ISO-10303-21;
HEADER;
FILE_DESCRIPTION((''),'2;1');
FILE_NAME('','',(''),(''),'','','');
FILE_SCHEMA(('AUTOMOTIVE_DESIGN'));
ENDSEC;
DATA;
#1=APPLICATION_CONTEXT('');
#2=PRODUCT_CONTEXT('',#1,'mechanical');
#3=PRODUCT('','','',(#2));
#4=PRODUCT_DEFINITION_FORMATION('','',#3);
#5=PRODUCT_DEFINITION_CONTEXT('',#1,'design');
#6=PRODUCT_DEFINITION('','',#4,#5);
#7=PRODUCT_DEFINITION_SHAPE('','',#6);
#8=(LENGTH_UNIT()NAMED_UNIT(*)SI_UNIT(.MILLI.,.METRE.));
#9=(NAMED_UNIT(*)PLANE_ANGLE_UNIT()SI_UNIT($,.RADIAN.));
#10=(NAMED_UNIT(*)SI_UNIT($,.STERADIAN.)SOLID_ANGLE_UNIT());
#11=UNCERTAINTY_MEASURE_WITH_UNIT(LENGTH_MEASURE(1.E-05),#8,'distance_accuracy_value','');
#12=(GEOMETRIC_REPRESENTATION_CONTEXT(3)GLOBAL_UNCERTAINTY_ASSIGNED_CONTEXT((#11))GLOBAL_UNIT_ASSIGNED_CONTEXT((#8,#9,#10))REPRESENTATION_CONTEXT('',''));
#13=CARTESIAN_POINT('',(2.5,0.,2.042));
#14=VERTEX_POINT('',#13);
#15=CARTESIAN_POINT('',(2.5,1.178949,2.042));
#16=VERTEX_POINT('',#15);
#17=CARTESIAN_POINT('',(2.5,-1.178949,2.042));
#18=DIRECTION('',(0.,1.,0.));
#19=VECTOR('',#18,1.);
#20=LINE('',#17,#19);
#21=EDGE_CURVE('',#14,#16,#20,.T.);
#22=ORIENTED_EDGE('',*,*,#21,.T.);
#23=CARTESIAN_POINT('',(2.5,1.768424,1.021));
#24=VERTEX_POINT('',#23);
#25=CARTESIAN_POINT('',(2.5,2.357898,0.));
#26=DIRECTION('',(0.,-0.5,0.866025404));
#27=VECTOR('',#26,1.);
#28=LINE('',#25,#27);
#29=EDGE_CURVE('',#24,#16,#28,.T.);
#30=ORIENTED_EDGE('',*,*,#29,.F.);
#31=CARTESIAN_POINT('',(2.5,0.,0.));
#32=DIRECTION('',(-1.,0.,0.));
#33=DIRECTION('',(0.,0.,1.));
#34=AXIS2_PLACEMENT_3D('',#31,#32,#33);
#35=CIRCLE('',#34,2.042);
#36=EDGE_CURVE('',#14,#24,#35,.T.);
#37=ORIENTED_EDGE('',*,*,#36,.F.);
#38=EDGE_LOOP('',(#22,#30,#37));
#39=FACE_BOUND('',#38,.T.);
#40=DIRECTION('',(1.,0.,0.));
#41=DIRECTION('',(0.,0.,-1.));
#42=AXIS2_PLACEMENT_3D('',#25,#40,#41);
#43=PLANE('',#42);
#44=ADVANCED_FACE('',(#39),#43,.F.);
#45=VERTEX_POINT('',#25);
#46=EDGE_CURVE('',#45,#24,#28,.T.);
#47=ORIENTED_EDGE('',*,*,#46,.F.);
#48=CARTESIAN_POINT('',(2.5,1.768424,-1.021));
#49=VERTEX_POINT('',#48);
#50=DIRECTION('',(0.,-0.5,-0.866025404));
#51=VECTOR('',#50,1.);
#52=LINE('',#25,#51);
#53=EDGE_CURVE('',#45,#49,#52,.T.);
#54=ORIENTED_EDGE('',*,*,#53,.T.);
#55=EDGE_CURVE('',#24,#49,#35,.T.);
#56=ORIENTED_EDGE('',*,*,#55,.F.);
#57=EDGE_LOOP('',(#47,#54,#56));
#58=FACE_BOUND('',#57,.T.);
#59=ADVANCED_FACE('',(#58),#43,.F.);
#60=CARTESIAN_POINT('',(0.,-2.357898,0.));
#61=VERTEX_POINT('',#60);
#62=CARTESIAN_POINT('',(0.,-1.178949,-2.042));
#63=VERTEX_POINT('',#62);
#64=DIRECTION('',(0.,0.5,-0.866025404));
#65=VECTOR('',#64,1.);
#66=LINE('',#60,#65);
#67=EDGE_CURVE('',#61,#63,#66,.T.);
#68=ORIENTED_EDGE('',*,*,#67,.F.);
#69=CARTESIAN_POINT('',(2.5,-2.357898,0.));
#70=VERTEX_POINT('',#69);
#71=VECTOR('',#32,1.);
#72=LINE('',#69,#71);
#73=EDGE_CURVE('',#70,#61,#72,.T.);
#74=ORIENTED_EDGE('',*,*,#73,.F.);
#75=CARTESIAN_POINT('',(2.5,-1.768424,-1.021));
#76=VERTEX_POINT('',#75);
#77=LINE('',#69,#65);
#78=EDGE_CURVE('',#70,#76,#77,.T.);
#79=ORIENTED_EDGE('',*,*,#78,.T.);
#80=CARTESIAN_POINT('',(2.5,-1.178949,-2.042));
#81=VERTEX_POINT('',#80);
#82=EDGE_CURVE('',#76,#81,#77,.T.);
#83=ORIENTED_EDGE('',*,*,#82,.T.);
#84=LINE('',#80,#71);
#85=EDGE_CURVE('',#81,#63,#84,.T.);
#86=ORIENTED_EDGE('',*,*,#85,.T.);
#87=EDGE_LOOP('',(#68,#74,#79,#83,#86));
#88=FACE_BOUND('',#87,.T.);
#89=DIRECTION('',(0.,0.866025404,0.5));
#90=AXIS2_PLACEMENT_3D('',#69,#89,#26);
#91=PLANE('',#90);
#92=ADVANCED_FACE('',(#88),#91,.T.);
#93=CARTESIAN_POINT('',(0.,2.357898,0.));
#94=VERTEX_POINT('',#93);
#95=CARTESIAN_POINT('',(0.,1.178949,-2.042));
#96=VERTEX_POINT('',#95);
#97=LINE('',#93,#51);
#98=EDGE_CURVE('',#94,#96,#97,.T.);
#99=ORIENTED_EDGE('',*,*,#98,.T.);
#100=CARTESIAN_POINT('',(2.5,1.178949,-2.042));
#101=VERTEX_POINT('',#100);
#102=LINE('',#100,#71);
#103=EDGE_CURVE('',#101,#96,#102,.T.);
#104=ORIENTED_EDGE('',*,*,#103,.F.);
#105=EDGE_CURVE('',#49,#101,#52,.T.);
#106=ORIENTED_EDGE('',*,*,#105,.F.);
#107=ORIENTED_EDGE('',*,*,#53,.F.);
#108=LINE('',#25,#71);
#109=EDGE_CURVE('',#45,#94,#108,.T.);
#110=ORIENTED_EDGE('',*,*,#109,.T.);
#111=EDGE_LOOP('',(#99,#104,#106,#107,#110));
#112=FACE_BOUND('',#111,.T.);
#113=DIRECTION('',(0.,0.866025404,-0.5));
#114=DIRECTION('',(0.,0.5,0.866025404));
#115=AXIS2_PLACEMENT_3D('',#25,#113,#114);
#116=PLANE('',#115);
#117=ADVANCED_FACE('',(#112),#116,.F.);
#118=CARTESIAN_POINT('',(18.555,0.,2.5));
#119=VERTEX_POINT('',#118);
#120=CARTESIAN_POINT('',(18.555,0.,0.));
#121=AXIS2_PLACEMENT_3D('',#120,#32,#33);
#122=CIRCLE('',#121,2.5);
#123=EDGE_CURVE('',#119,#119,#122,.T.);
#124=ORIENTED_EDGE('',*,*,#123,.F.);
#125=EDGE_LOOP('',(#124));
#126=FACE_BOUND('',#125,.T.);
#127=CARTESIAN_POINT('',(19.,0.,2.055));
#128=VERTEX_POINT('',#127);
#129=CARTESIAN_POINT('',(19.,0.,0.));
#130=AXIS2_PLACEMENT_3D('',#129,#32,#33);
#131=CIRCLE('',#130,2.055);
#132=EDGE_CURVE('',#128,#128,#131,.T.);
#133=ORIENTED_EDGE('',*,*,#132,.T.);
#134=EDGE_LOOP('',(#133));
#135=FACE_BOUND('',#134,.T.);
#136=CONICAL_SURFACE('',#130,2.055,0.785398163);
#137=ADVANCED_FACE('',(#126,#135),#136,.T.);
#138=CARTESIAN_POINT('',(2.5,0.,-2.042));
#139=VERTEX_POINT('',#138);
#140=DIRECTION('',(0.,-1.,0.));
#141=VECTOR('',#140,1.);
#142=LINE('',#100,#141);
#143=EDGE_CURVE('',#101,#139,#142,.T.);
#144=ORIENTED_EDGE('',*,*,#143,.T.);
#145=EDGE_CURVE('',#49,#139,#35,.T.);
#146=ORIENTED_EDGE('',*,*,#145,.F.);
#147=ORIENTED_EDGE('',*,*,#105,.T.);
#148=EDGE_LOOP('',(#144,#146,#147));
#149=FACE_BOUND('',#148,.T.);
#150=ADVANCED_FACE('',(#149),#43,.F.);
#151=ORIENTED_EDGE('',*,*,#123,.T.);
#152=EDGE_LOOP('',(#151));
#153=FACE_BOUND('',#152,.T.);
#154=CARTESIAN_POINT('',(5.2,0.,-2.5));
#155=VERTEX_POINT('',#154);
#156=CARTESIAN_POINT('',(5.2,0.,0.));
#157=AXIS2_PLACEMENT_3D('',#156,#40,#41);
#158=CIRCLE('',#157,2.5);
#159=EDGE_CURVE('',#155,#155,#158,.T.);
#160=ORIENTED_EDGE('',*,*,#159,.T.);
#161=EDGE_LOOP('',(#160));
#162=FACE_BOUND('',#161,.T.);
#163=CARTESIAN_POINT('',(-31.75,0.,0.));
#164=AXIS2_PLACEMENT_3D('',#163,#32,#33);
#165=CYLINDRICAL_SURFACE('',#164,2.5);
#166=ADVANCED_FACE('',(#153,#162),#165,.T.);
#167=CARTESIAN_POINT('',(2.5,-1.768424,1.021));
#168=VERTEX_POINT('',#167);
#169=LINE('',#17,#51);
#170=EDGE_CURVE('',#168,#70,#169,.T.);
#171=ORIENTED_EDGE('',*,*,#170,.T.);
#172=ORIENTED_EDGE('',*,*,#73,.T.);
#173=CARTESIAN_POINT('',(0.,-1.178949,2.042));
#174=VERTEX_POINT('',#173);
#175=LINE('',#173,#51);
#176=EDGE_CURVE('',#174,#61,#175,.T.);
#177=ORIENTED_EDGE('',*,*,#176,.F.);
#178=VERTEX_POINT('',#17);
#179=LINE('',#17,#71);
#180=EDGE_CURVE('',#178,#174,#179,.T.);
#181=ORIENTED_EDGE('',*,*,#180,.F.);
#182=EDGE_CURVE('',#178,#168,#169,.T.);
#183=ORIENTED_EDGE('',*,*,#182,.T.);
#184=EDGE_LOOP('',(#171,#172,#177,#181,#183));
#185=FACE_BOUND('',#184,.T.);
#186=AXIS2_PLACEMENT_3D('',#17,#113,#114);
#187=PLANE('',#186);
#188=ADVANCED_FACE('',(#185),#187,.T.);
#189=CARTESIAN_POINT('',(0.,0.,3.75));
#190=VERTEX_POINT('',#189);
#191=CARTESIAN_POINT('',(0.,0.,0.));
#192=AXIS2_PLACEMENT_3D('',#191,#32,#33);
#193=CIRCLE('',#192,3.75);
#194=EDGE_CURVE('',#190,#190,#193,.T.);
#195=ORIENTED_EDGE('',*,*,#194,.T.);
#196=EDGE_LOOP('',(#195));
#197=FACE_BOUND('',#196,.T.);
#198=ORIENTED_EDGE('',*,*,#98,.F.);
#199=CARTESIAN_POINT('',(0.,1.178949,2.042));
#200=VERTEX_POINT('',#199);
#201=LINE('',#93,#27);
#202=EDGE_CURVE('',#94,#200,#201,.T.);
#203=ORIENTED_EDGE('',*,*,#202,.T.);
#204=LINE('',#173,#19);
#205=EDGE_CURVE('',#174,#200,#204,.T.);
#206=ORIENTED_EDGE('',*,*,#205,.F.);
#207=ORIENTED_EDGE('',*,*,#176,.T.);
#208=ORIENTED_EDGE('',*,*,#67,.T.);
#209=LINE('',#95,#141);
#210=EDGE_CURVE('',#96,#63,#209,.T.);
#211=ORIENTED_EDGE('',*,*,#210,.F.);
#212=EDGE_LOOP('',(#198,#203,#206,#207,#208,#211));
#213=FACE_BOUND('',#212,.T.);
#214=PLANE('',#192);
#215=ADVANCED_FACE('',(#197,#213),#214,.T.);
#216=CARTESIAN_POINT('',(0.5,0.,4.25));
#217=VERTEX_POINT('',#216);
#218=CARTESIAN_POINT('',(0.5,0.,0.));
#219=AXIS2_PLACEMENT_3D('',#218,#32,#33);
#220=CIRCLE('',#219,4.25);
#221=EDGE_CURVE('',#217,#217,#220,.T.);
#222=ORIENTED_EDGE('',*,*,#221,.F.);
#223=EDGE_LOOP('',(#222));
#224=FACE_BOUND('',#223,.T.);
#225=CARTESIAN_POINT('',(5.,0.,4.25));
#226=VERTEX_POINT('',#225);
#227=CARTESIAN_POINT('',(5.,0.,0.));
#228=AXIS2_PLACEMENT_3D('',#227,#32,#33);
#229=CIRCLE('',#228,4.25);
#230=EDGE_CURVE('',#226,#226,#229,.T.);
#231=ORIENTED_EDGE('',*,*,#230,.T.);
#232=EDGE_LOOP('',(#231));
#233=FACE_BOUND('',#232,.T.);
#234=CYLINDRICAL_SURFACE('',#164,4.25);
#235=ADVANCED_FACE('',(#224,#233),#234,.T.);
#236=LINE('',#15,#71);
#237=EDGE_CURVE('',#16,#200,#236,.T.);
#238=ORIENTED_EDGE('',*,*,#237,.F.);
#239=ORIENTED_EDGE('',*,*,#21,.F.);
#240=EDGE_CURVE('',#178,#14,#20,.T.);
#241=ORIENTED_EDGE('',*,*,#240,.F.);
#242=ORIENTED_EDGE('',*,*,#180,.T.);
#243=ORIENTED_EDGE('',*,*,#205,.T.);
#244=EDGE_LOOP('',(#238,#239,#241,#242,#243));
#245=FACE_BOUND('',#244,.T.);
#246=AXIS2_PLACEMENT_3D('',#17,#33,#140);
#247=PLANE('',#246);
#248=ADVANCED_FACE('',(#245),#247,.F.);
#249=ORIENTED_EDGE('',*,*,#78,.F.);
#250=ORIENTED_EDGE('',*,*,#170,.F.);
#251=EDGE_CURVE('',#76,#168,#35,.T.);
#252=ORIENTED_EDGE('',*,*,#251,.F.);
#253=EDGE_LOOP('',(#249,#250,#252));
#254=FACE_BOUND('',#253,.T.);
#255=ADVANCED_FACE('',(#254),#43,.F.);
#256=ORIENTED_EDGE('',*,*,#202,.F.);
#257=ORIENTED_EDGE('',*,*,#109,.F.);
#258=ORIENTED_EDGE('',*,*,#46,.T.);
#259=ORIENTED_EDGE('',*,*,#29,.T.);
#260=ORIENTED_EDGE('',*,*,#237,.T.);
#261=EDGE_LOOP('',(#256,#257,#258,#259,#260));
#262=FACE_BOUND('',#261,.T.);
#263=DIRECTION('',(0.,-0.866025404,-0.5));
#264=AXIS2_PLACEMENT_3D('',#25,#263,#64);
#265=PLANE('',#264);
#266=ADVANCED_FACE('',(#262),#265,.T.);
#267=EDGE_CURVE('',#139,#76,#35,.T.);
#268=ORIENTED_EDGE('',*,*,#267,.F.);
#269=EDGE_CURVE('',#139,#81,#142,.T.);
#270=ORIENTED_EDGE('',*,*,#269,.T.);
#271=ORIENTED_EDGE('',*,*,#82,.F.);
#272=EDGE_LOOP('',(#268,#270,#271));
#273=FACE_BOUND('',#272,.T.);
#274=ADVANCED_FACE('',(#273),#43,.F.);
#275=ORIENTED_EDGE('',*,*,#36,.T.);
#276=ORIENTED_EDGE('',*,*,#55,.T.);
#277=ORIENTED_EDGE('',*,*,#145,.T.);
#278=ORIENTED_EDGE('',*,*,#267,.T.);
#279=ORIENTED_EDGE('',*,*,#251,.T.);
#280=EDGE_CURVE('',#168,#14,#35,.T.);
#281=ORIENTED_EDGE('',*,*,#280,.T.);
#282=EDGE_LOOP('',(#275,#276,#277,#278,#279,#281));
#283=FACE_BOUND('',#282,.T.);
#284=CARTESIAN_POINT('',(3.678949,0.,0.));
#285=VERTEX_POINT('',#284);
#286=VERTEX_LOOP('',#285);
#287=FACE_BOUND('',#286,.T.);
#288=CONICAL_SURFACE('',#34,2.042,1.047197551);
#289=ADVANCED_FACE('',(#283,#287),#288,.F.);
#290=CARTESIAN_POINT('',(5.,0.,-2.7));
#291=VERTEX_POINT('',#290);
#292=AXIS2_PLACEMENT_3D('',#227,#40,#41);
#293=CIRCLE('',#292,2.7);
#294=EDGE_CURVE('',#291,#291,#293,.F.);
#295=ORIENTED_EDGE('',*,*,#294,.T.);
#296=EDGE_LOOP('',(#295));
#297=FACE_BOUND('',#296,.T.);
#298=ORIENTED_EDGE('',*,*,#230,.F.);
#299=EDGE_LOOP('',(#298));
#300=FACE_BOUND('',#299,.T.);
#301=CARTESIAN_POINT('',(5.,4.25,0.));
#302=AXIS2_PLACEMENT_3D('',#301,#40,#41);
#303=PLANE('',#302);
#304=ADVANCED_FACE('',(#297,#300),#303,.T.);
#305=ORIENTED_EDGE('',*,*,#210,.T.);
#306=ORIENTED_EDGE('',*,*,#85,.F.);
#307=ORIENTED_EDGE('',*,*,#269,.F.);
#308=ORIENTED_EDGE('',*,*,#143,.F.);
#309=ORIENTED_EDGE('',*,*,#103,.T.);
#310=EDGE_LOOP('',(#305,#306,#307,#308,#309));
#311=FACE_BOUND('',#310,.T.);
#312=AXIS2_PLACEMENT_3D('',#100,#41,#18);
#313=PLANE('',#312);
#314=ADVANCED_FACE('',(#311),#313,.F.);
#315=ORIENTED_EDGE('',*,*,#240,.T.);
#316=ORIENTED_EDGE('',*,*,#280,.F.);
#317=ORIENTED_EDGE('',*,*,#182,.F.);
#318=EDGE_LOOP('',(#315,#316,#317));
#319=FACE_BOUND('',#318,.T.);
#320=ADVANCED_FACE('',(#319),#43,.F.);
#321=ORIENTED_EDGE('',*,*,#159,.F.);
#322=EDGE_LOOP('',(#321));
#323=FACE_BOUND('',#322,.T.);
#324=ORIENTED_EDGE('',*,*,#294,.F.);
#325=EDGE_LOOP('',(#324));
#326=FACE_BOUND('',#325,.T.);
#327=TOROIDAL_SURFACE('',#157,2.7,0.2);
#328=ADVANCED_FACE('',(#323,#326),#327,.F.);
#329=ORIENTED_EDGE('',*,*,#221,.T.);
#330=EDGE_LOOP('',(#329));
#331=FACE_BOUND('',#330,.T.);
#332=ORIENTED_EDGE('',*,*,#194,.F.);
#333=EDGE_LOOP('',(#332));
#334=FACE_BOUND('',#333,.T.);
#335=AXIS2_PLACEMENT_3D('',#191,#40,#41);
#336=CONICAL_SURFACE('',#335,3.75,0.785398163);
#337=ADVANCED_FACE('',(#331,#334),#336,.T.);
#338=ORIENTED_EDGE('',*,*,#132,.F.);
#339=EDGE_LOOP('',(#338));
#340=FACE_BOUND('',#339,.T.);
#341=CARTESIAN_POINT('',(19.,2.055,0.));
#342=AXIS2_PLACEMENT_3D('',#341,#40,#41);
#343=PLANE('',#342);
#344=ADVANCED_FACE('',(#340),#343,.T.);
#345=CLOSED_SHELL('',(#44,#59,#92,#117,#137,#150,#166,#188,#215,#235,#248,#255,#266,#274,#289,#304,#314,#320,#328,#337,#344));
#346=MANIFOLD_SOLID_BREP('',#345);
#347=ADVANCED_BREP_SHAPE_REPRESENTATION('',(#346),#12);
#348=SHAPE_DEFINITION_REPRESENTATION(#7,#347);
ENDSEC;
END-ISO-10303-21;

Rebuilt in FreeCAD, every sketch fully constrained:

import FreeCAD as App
import Part
import Sketcher

V = App.Vector
Q = App.Units.Quantity


def edges_at(feature, points):
    """Names of the edges that pass closest to the given points."""
    edges = feature.Shape.Edges
    near = lambda p: min(range(len(edges)), key=lambda i: edges[i].distToShape(Part.Vertex(*p))[0])
    return sorted({f"Edge{near(p) + 1}" for p in points})

doc = App.newDocument("Part")
body = doc.addObject("PartDesign::Body", "Body")

# Sketch on XY plane
sketch1 = body.newObject("Sketcher::SketchObject", "Sketch")
sketch1.AttachmentSupport = (doc.getObject("XY_Plane"), [""])
sketch1.MapMode = "FlatFace"
sketch1.addGeometry([
    Part.LineSegment(V(0, 3.8, 0), V(0, 0, 0)),  # 0
    Part.LineSegment(V(0, 0, 0), V(19, 0, 0)),  # 1
    Part.LineSegment(V(19, 0, 0), V(19, 2.1, 0)),  # 2
    Part.LineSegment(V(19, 2.1, 0), V(18.6, 2.5, 0)),  # 3
    Part.LineSegment(V(18.6, 2.5, 0), V(5, 2.5, 0)),  # 4
    Part.LineSegment(V(5, 2.5, 0), V(5, 4.2, 0)),  # 5
    Part.LineSegment(V(5, 4.2, 0), V(0.5, 4.2, 0)),  # 6
    Part.LineSegment(V(0.5, 4.2, 0), V(0, 3.8, 0)),  # 7
], False)
sketch1.addConstraint([
    Sketcher.Constraint("Coincident", 0, 2, 1, 1),
    Sketcher.Constraint("Coincident", 1, 2, 2, 1),
    Sketcher.Constraint("Coincident", 2, 2, 3, 1),
    Sketcher.Constraint("Coincident", 3, 2, 4, 1),
    Sketcher.Constraint("Coincident", 4, 2, 5, 1),
    Sketcher.Constraint("Coincident", 5, 2, 6, 1),
    Sketcher.Constraint("Coincident", 6, 2, 7, 1),
    Sketcher.Constraint("Coincident", 7, 2, 0, 1),
    Sketcher.Constraint("Vertical", 0),
    Sketcher.Constraint("Horizontal", 1),
    Sketcher.Constraint("Vertical", 2),
    Sketcher.Constraint("Horizontal", 4),
    Sketcher.Constraint("Vertical", 5),
    Sketcher.Constraint("Horizontal", 6),
    Sketcher.Constraint("Coincident", 0, 2, -1, 1),
    Sketcher.Constraint("Perpendicular", 3, 7),
    Sketcher.Constraint("DistanceX", 1, 1, 1, 2, Q("19 mm")),
    Sketcher.Constraint("Angle", 3, Q("135 deg")),
    Sketcher.Constraint("DistanceX", 6, 2, 6, 1, Q("4.5 mm")),
    Sketcher.Constraint("DistanceX", -1, 1, 4, 2, Q("5 mm")),
    Sketcher.Constraint("DistanceY", 0, 2, 0, 1, Q("3.75 mm")),
    Sketcher.Constraint("DistanceY", 5, 1, 5, 2, Q("1.75 mm")),
    Sketcher.Constraint("DistanceX", 4, 2, 4, 1, Q("13.555 mm")),
])
revolution = body.newObject("PartDesign::Revolution", "Revolution")
revolution.Profile = sketch1
revolution.ReferenceAxis = (sketch1, ["H_Axis"])
revolution.Angle = 360
doc.recompute()

fillet = body.newObject("PartDesign::Fillet", "Fillet")
fillet.Base = (revolution, edges_at(revolution, [(5, -2.5, 0)]))
fillet.Radius = 0.2

# Sketch on XY plane
sketch2 = body.newObject("Sketcher::SketchObject", "Sketch001")
sketch2.AttachmentSupport = (doc.getObject("XY_Plane"), [""])
sketch2.MapMode = "FlatFace"
sketch2.addGeometry([
    Part.LineSegment(V(2.5, 2, 0), V(0, 2, 0)),
    Part.LineSegment(V(0, 2, 0), V(0, 0, 0)),
    Part.LineSegment(V(0, 0, 0), V(3.7, 0, 0)),
    Part.LineSegment(V(3.7, 0, 0), V(2.5, 2, 0)),
], False)
sketch2.addConstraint([
    Sketcher.Constraint("Coincident", 0, 2, 1, 1),
    Sketcher.Constraint("Coincident", 1, 2, 2, 1),
    Sketcher.Constraint("Coincident", 2, 2, 3, 1),
    Sketcher.Constraint("Coincident", 3, 2, 0, 1),
    Sketcher.Constraint("Horizontal", 0),
    Sketcher.Constraint("Vertical", 1),
    Sketcher.Constraint("Horizontal", 2),
    Sketcher.Constraint("Coincident", 1, 2, -1, 1),
    Sketcher.Constraint("Angle", 3, Q("120 deg")),
    Sketcher.Constraint("DistanceX", 0, 2, 0, 1, Q("2.5 mm")),
    Sketcher.Constraint("DistanceY", 1, 2, 1, 1, Q("2.042 mm")),
])
groove = body.newObject("PartDesign::Groove", "Groove")
groove.Profile = sketch2
groove.ReferenceAxis = (sketch2, ["H_Axis"])
groove.Angle = 360

# Sketch on YZ plane
sketch3 = body.newObject("Sketcher::SketchObject", "Sketch002")
sketch3.AttachmentSupport = (doc.getObject("YZ_Plane"), [""])
sketch3.MapMode = "FlatFace"
sketch3.addGeometry([
    Part.LineSegment(V(2.4, 0, 0), V(1.2, -2, 0)),  # 0
    Part.LineSegment(V(1.2, -2, 0), V(-1.2, -2, 0)),  # 1
    Part.LineSegment(V(-1.2, -2, 0), V(-2.4, 0, 0)),  # 2
    Part.LineSegment(V(-2.4, 0, 0), V(-1.2, 2, 0)),  # 3
    Part.LineSegment(V(-1.2, 2, 0), V(1.2, 2, 0)),  # 4
    Part.LineSegment(V(1.2, 2, 0), V(2.4, 0, 0)),  # 5
], False)
sketch3.addConstraint([
    Sketcher.Constraint("Coincident", 0, 2, 1, 1),
    Sketcher.Constraint("Coincident", 1, 2, 2, 1),
    Sketcher.Constraint("Coincident", 2, 2, 3, 1),
    Sketcher.Constraint("Coincident", 3, 2, 4, 1),
    Sketcher.Constraint("Coincident", 4, 2, 5, 1),
    Sketcher.Constraint("Coincident", 5, 2, 0, 1),
    Sketcher.Constraint("Horizontal", 1),
    Sketcher.Constraint("Horizontal", 4),
    Sketcher.Constraint("Symmetric", 0, 2, 3, 2, -1, 1),
    Sketcher.Constraint("Symmetric", 2, 2, 5, 2, -1, 1),
    Sketcher.Constraint("PointOnObject", 2, 2, -1),
    Sketcher.Constraint("Parallel", 2, 5),
    Sketcher.Constraint("Vertical", 1, 2, 3, 2),
    Sketcher.Constraint("Angle", 0, Q("-120 deg")),
    Sketcher.Constraint("DistanceX", 1, 2, 1, 1, Q("2.357899 mm")),
    Sketcher.Constraint("DistanceY", 0, 2, -1, 1, Q("2.042 mm")),
])
pocket1 = body.newObject("PartDesign::Pocket", "Pocket")
pocket1.Profile = sketch3
pocket1.Length = 2.5
pocket1.Reversed = True

doc.recompute()
